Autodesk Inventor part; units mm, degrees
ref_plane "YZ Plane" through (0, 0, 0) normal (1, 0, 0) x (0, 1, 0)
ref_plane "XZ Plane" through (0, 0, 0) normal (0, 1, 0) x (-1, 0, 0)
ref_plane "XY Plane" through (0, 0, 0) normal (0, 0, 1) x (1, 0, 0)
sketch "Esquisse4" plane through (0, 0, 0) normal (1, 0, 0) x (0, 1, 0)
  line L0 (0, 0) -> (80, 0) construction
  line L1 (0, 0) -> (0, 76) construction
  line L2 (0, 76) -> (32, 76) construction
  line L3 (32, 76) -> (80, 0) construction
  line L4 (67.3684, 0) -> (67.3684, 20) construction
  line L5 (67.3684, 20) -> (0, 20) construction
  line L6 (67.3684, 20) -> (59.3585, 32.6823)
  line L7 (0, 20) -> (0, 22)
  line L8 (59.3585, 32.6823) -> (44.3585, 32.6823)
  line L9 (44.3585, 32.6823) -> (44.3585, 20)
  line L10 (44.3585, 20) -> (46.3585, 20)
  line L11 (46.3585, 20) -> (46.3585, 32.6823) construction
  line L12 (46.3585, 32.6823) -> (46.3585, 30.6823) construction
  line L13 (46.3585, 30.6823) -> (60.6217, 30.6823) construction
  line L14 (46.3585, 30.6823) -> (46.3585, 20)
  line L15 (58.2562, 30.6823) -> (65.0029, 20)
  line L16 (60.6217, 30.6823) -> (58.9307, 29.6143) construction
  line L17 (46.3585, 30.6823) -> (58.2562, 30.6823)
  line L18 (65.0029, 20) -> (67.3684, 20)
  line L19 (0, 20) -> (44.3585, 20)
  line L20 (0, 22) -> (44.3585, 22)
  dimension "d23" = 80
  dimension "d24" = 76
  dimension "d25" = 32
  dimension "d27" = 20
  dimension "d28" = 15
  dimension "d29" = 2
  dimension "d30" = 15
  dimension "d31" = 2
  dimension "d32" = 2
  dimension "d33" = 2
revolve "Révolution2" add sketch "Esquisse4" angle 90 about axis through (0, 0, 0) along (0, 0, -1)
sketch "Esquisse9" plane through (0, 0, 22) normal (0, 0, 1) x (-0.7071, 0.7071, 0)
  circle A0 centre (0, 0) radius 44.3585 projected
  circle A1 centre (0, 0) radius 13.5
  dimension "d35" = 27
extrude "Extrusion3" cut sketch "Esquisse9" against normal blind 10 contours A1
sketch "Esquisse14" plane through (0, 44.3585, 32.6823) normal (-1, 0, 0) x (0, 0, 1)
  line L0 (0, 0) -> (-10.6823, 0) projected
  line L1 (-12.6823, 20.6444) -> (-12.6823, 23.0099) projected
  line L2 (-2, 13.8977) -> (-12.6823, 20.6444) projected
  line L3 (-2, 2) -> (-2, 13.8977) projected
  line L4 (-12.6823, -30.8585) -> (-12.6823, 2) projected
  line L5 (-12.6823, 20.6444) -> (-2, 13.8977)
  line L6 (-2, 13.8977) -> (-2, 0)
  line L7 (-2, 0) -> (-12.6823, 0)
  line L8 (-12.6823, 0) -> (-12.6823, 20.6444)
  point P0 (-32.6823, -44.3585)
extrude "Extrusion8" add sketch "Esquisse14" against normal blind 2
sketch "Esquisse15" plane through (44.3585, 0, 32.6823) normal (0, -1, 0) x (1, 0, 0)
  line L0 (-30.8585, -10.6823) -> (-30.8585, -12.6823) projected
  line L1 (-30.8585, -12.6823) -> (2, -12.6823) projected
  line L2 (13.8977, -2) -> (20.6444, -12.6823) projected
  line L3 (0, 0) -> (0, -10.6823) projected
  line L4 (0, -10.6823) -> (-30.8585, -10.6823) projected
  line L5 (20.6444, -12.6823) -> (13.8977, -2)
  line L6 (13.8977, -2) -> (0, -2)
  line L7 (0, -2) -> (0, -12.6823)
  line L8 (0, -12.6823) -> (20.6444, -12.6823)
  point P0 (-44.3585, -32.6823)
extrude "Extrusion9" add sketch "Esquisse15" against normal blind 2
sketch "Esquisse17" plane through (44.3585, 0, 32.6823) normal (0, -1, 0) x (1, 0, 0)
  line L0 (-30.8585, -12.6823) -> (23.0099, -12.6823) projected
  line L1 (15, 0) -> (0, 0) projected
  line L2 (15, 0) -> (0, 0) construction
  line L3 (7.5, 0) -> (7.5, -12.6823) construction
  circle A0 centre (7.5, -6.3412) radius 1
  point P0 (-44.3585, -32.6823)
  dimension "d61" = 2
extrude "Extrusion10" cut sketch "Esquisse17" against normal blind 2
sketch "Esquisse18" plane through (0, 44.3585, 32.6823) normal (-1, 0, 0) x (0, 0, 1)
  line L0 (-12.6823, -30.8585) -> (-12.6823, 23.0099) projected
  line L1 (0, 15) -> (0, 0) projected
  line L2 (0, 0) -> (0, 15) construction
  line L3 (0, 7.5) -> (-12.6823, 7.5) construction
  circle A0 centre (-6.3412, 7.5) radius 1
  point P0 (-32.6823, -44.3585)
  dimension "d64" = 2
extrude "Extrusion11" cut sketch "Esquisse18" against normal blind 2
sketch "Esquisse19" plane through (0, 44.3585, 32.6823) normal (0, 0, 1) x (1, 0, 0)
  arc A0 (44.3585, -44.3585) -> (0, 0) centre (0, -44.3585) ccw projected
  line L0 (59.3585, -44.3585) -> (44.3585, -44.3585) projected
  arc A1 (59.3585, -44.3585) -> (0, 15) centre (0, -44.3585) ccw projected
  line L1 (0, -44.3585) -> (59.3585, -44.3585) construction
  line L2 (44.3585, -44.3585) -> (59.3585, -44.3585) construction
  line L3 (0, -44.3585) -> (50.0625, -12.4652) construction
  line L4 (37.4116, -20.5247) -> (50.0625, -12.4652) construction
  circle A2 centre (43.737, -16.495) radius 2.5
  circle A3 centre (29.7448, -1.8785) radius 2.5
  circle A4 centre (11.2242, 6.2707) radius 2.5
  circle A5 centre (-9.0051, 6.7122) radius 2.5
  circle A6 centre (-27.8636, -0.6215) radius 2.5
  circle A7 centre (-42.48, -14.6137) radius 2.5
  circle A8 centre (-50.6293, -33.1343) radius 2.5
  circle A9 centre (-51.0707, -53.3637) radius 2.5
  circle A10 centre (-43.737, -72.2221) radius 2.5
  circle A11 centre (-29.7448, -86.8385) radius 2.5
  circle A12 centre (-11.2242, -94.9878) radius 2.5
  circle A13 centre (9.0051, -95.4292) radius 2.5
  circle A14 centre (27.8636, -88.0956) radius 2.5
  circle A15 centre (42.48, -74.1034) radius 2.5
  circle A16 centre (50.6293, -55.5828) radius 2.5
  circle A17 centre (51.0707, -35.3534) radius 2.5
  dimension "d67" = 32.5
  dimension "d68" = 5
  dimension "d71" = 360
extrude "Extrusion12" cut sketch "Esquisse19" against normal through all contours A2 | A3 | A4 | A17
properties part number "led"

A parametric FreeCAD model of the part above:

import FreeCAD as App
import Part
import Sketcher


def add_polygon(sketch, points):
    """Adds a closed chain of lines whose ends are joined by coincident constraints."""
    first, n = sketch.GeometryCount, len(points)
    for a, b in zip(points, points[1:] + points[:1]):
        sketch.addGeometry(Part.LineSegment(App.Vector(*a, 0), App.Vector(*b, 0)), False)
    for i in range(n):
        sketch.addConstraint(Sketcher.Constraint("Coincident", first + i, 2, first + (i + 1) % n, 1))

doc = App.newDocument("Part")
body = doc.addObject("PartDesign::Body", "Body")

# Sketch on YZ plane
sketch1 = body.newObject("Sketcher::SketchObject", "Sketch")
sketch1.AttachmentSupport = (doc.getObject("YZ_Plane"), [""])
sketch1.MapMode = "FlatFace"
add_polygon(sketch1, [(65.0029, 20), (67.3684, 20), (59.3585, 32.6823), (44.3585, 32.6823), (44.3585, 22), (0, 22), (0, 20), (46.3585, 20), (46.3585, 30.6823), (58.2562, 30.6823)])  # lines 0-9
sketch1.addConstraint([
    Sketcher.Constraint("Horizontal", 0),
    Sketcher.Constraint("Horizontal", 2),
    Sketcher.Constraint("Vertical", 3),
    Sketcher.Constraint("Horizontal", 4),
    Sketcher.Constraint("Vertical", 5),
    Sketcher.Constraint("Horizontal", 6),
    Sketcher.Constraint("Vertical", 7),
    Sketcher.Constraint("Horizontal", 8),
    Sketcher.Constraint("PointOnObject", 4, 2, -2),
    Sketcher.Constraint("Parallel", 1, 9),
    Sketcher.Constraint("Horizontal", 0, 2, 5, 2),
    Sketcher.Constraint("Equal", 3, 7),
    Sketcher.Constraint("DistanceX", 2, 2, 2, 1, 15.0),
    Sketcher.Constraint("DistanceY", 5, 2, 5, 1, 2.0),
    Sketcher.Constraint("Distance", 1, 15.0),
    Sketcher.Constraint("DistanceY", -1, 1, 0, 2, 20.0),
    Sketcher.Constraint("DistanceX", 3, 2, 6, 2, 2.0),
    Sketcher.Constraint("DistanceX", 1, 2, 0, 2, 8.01),
    Sketcher.Constraint("DistanceX", 0, 1, 0, 2, 2.3655),
    Sketcher.Constraint("DistanceX", 4, 2, 4, 1, 44.3585),
])
revolution = body.newObject("PartDesign::Revolution", "Revolution")
revolution.Profile = sketch1
revolution.ReferenceAxis = (sketch1, ["V_Axis"])
revolution.Angle = 90
revolution.Reversed = True

# Sketch on XY plane
sketch2 = body.newObject("Sketcher::SketchObject", "Sketch001")
sketch2.AttachmentSupport = (doc.getObject("XY_Plane"), [""])
sketch2.MapMode = "FlatFace"
sketch2.AttachmentOffset = App.Placement(App.Vector(0, 0, 22), App.Rotation())
sketch2.addGeometry(Part.Circle(App.Vector(0, 0, 0), App.Vector(0, 0, 1), 13.5), False)
sketch2.addConstraint([
    Sketcher.Constraint("Coincident", 0, 3, -1, 1),
    Sketcher.Constraint("Diameter", 0, 27.0),
])
pocket1 = body.newObject("PartDesign::Pocket", "Pocket")
pocket1.Profile = sketch2
pocket1.Length = 10

# Sketch on YZ plane
sketch3 = body.newObject("Sketcher::SketchObject", "Sketch002")
sketch3.AttachmentSupport = (doc.getObject("YZ_Plane"), [""])
sketch3.MapMode = "FlatFace"
add_polygon(sketch3, [(44.3585, 20), (44.3585, 30.6823), (58.2562, 30.6823), (65.0029, 20)])  # lines 0-3
sketch3.addConstraint([
    Sketcher.Constraint("Vertical", 0),
    Sketcher.Constraint("Horizontal", 1),
    Sketcher.Constraint("Horizontal", 3),
    Sketcher.Constraint("DistanceY", -1, 1, 2, 2, 20.0),
    Sketcher.Constraint("DistanceX", 1, 1, 1, 2, 13.8977),
    Sketcher.Constraint("DistanceX", 3, 2, 3, 1, 20.6444),
    Sketcher.Constraint("DistanceY", 0, 1, 0, 2, 10.6823),
    Sketcher.Constraint("DistanceX", -1, 1, 2, 2, 65.003),
])
pad1 = body.newObject("PartDesign::Pad", "Pad")
pad1.Profile = sketch3
pad1.Length = 2

# Sketch on XZ plane
sketch4 = body.newObject("Sketcher::SketchObject", "Sketch003")
sketch4.AttachmentSupport = (doc.getObject("XZ_Plane"), [""])
sketch4.MapMode = "FlatFace"
add_polygon(sketch4, [(44.3585, 22), (13.5, 22), (13.5, 20), (65.0029, 20), (58.2562, 30.6823), (44.3585, 30.6823)])  # lines 0-5
sketch4.addConstraint([
    Sketcher.Constraint("Horizontal", 0),
    Sketcher.Constraint("Vertical", 1),
    Sketcher.Constraint("Horizontal", 2),
    Sketcher.Constraint("Horizontal", 4),
    Sketcher.Constraint("Vertical", 5),
    Sketcher.Constraint("DistanceY", 1, 2, 1, 1, 2.0),
    Sketcher.Constraint("DistanceY", -1, 1, 0, 2, 22.0),
    Sketcher.Constraint("DistanceX", -1, 1, 0, 2, 13.5),
    Sketcher.Constraint("DistanceX", 2, 1, 2, 2, 51.503),
    Sketcher.Constraint("DistanceX", 0, 2, 0, 1, 30.8585),
    Sketcher.Constraint("DistanceX", 4, 2, 4, 1, 13.8977),
    Sketcher.Constraint("DistanceY", 5, 2, 5, 1, 8.6823),
])
pad2 = body.newObject("PartDesign::Pad", "Pad001")
pad2.Profile = sketch4
pad2.Length = 2
pad2.Reversed = True

# Sketch on XZ plane
sketch5 = body.newObject("Sketcher::SketchObject", "Sketch004")
sketch5.AttachmentSupport = (doc.getObject("XZ_Plane"), [""])
sketch5.MapMode = "FlatFace"
sketch5.addGeometry(Part.Circle(App.Vector(51.8585, 26.3411, 0), App.Vector(0, 0, 1), 1), False)
sketch5.addConstraint([
    Sketcher.Constraint("Diameter", 0, 2.0),
    Sketcher.Constraint("DistanceY", -1, 1, 0, 3, 26.341),
    Sketcher.Constraint("DistanceX", -1, 1, 0, 3, 51.8585),
])
pocket2 = body.newObject("PartDesign::Pocket", "Pocket001")
pocket2.Profile = sketch5
pocket2.Length = 2

# Sketch on YZ plane
sketch6 = body.newObject("Sketcher::SketchObject", "Sketch005")
sketch6.AttachmentSupport = (doc.getObject("YZ_Plane"), [""])
sketch6.MapMode = "FlatFace"
sketch6.addGeometry(Part.Circle(App.Vector(51.8585, 26.3411, 0), App.Vector(0, 0, 1), 1), False)
sketch6.addConstraint([
    Sketcher.Constraint("Diameter", 0, 2.0),
    Sketcher.Constraint("DistanceY", -1, 1, 0, 3, 26.341),
    Sketcher.Constraint("DistanceX", -1, 1, 0, 3, 51.8585),
])
pocket3 = body.newObject("PartDesign::Pocket", "Pocket002")
pocket3.Profile = sketch6
pocket3.Length = 2
pocket3.Reversed = True

# Sketch on XY plane
sketch7 = body.newObject("Sketcher::SketchObject", "Sketch006")
sketch7.AttachmentSupport = (doc.getObject("XY_Plane"), [""])
sketch7.MapMode = "FlatFace"
sketch7.AttachmentOffset = App.Placement(App.Vector(0, 0, 32.6823), App.Rotation())
sketch7.addGeometry([
    Part.Circle(App.Vector(43.737, 27.8635, 0), App.Vector(0, 0, 1), 2.5),
    Part.Circle(App.Vector(29.7448, 42.48, 0), App.Vector(0, 0, 1), 2.5),
    Part.Circle(App.Vector(11.2242, 50.6292, 0), App.Vector(0, 0, 1), 2.5),
    Part.Circle(App.Vector(51.0707, 9.0051, 0), App.Vector(0, 0, 1), 2.5),
], False)
sketch7.addConstraint([
    Sketcher.Constraint("Equal", 0, 1),
    Sketcher.Constraint("Equal", 1, 2),
    Sketcher.Constraint("Equal", 2, 3),
    Sketcher.Constraint("Diameter", 0, 5.0),
    Sketcher.Constraint("DistanceY", -1, 1, 1, 3, 42.48),
    Sketcher.Constraint("DistanceX", -1, 1, 0, 3, 43.737),
    Sketcher.Constraint("DistanceY", -1, 1, 3, 3, 9.005),
    Sketcher.Constraint("DistanceX", 1, 3, 3, 3, 21.326),
    Sketcher.Constraint("DistanceY", 3, 3, 2, 3, 41.624),
    Sketcher.Constraint("DistanceY", -1, 1, 0, 3, 27.8635),
    Sketcher.Constraint("DistanceX", -1, 1, 1, 3, 29.7448),
    Sketcher.Constraint("DistanceX", -1, 1, 2, 3, 11.2242),
])
pocket4 = body.newObject("PartDesign::Pocket", "Pocket003")
pocket4.Profile = sketch7
pocket4.Type = "ThroughAll"

doc.recompute()
